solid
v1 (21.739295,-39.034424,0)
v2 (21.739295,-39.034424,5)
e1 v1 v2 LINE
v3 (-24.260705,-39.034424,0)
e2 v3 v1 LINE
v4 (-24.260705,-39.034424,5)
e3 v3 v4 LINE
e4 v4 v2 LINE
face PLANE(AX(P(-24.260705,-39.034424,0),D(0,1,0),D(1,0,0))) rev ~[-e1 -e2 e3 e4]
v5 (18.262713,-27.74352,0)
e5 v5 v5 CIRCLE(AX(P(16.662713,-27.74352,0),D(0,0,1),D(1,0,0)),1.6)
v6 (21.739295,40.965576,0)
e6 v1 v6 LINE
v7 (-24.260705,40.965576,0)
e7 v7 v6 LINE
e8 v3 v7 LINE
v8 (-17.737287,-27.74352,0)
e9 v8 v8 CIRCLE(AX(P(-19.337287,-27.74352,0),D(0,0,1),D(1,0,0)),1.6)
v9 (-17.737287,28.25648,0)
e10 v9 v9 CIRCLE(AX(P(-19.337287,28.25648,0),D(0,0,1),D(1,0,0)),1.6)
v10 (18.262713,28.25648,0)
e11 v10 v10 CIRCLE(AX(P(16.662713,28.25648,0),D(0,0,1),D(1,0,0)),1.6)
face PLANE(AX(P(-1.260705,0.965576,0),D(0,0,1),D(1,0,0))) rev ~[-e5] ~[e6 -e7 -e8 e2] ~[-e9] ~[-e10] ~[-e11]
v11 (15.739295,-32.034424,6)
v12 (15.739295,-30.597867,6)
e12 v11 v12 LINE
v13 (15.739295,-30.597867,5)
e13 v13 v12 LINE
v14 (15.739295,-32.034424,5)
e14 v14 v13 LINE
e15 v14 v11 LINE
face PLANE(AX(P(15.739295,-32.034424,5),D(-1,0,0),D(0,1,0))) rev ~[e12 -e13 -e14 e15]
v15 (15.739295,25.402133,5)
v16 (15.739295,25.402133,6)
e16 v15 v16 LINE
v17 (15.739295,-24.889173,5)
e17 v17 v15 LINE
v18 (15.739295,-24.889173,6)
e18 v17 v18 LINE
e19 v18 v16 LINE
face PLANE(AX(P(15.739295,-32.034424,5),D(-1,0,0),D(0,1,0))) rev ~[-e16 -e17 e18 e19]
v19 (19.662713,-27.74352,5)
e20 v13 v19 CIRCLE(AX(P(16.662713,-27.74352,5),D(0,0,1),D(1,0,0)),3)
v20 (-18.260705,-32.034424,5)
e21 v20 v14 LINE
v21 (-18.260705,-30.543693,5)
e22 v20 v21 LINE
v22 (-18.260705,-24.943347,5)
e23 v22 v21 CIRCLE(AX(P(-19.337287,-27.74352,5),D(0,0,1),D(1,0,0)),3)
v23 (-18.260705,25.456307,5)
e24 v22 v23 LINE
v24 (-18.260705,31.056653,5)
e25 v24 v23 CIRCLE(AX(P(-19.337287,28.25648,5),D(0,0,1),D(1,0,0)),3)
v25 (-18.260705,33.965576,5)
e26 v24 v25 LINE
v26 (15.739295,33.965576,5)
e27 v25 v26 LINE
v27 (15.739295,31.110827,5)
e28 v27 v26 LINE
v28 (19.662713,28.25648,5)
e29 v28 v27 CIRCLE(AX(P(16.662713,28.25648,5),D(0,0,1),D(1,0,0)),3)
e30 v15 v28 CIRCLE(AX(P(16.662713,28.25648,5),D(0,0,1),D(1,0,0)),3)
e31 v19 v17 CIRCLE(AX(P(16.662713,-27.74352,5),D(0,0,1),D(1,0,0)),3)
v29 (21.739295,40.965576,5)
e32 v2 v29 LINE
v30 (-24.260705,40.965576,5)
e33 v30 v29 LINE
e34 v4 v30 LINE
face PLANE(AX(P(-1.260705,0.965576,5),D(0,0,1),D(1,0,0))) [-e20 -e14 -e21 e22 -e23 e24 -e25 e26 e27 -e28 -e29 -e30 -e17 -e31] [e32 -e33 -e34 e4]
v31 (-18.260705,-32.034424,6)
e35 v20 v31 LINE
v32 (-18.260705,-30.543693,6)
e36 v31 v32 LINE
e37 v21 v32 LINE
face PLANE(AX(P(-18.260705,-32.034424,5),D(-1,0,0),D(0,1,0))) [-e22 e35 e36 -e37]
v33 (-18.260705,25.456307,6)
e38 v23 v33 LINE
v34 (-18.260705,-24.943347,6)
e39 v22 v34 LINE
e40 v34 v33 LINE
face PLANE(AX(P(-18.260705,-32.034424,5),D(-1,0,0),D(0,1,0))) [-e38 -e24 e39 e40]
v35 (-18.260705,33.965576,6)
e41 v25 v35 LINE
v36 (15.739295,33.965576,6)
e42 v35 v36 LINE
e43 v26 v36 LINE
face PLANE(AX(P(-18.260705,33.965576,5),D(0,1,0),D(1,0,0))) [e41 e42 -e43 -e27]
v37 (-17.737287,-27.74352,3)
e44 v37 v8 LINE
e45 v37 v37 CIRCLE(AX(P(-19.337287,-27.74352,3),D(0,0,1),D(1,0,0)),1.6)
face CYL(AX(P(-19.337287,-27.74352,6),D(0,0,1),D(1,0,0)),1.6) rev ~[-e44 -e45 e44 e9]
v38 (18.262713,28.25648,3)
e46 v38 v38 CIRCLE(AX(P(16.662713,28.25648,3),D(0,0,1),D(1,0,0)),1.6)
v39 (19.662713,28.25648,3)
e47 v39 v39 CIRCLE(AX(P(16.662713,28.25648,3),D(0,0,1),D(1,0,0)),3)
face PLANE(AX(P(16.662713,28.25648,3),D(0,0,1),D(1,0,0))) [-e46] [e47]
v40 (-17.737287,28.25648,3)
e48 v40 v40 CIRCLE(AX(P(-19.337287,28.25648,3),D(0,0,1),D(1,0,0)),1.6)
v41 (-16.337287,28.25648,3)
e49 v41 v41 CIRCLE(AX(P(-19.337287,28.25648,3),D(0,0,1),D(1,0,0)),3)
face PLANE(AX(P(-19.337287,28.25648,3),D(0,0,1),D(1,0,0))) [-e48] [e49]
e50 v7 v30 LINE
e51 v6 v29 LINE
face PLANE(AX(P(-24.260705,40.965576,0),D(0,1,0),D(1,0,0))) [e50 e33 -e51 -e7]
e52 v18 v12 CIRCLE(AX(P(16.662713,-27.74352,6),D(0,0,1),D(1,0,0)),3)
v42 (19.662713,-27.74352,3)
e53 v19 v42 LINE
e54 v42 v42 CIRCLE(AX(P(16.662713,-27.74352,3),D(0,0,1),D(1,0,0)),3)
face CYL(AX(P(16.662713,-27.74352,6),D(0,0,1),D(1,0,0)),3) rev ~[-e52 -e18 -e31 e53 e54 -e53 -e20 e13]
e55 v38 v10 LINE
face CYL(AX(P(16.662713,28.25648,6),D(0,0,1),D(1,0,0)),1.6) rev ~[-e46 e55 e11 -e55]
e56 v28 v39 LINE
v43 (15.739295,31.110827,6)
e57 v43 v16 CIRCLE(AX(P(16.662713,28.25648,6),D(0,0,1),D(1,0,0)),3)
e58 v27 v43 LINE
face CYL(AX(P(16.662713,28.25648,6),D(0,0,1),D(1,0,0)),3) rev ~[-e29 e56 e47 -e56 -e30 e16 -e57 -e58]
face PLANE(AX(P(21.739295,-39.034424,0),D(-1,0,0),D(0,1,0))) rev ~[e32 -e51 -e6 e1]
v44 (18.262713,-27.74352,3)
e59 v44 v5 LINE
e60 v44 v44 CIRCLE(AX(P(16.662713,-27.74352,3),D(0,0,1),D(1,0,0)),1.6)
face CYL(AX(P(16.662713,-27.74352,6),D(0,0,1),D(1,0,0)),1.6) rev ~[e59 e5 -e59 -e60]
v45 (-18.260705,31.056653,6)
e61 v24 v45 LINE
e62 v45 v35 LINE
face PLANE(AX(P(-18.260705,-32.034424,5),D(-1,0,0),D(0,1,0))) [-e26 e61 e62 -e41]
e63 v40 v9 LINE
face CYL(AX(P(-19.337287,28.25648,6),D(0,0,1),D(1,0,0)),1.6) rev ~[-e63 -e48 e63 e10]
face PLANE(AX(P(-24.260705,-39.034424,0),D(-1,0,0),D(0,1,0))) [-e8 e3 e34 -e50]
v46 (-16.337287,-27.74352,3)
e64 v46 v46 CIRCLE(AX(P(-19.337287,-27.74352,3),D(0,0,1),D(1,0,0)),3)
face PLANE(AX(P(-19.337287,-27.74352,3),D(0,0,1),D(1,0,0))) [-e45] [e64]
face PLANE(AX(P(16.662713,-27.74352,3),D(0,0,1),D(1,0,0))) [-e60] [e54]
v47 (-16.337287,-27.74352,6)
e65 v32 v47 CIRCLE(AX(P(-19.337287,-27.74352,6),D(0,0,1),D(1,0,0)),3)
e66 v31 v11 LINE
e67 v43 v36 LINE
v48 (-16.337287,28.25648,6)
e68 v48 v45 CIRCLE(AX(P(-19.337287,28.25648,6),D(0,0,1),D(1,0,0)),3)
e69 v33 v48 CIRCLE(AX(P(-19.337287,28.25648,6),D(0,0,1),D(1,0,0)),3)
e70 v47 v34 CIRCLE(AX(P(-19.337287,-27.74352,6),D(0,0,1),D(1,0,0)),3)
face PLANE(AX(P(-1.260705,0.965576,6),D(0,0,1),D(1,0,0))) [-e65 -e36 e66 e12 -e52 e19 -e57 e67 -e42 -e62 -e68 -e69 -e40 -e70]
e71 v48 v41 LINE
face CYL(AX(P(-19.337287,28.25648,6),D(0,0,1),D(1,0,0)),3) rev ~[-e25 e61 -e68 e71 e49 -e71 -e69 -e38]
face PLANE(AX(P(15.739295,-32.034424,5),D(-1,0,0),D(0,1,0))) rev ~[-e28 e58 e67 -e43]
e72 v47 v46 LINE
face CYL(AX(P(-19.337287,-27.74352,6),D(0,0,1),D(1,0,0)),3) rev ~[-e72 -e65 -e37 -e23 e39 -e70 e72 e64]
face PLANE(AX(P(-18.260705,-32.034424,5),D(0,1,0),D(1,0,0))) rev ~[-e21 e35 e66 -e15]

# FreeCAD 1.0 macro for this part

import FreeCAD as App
import Part
import Sketcher
Q = App.Units.Quantity

doc = App.newDocument("Part")
body = doc.addObject("PartDesign::Body", "Body")

# Sketch on XY plane
sketch1 = body.newObject("Sketcher::SketchObject", "Sketch")
sketch1.AttachmentSupport = (doc.getObject("XY_Plane"), [""])
sketch1.MapMode = "FlatFace"
sketch1.addGeometry([
    Part.LineSegment(App.Vector(-24, 41, 0), App.Vector(-24, -39, 0)),
    Part.LineSegment(App.Vector(-24, -39, 0), App.Vector(22, -39, 0)),
    Part.LineSegment(App.Vector(22, -39, 0), App.Vector(22, 41, 0)),
    Part.LineSegment(App.Vector(22, 41, 0), App.Vector(-24, 41, 0)),
], False)
sketch1.addConstraint([
    Sketcher.Constraint("Coincident", 0, 2, 1, 1),
    Sketcher.Constraint("Coincident", 1, 2, 2, 1),
    Sketcher.Constraint("Coincident", 2, 2, 3, 1),
    Sketcher.Constraint("Coincident", 3, 2, 0, 1),
    Sketcher.Constraint("Vertical", 0),
    Sketcher.Constraint("Horizontal", 1),
    Sketcher.Constraint("Vertical", 2),
    Sketcher.Constraint("Horizontal", 3),
    Sketcher.Constraint("DistanceX", 1, 1, 1, 2, Q("46 mm")),
    Sketcher.Constraint("DistanceY", 0, 2, 0, 1, Q("80 mm")),
    Sketcher.Constraint("DistanceX", 0, 2, -1, 1, Q("24.260705 mm")),
    Sketcher.Constraint("DistanceY", 0, 2, -1, 1, Q("39.034424 mm")),
])
pad1 = body.newObject("PartDesign::Pad", "Pad")
pad1.Profile = sketch1
pad1.Length = 5

# Sketch on XY plane
sketch2 = body.newObject("Sketcher::SketchObject", "Sketch001")
sketch2.AttachmentSupport = (doc.getObject("XY_Plane"), [""])
sketch2.MapMode = "FlatFace"
sketch2.AttachmentOffset = App.Placement(App.Vector(0, 0, 5), App.Rotation())
sketch2.addGeometry([
    Part.LineSegment(App.Vector(-18, 34, 0), App.Vector(-18, -32, 0)),
    Part.LineSegment(App.Vector(-18, -32, 0), App.Vector(16, -32, 0)),
    Part.LineSegment(App.Vector(16, -32, 0), App.Vector(16, 34, 0)),
    Part.LineSegment(App.Vector(16, 34, 0), App.Vector(-18, 34, 0)),
], False)
sketch2.addConstraint([
    Sketcher.Constraint("Coincident", 0, 2, 1, 1),
    Sketcher.Constraint("Coincident", 1, 2, 2, 1),
    Sketcher.Constraint("Coincident", 2, 2, 3, 1),
    Sketcher.Constraint("Coincident", 3, 2, 0, 1),
    Sketcher.Constraint("Vertical", 0),
    Sketcher.Constraint("Horizontal", 1),
    Sketcher.Constraint("Vertical", 2),
    Sketcher.Constraint("Horizontal", 3),
    Sketcher.Constraint("DistanceX", 1, 1, 1, 2, Q("34 mm")),
    Sketcher.Constraint("DistanceY", 0, 2, 0, 1, Q("66 mm")),
    Sketcher.Constraint("DistanceX", 0, 2, -1, 1, Q("18.260705 mm")),
    Sketcher.Constraint("DistanceY", 0, 2, -1, 1, Q("32.034424 mm")),
])
pad2 = body.newObject("PartDesign::Pad", "Pad001")
pad2.Profile = sketch2
pad2.Length = 1

# Sketch on XY plane
sketch3 = body.newObject("Sketcher::SketchObject", "Sketch002")
sketch3.AttachmentSupport = (doc.getObject("XY_Plane"), [""])
sketch3.MapMode = "FlatFace"
sketch3.AttachmentOffset = App.Placement(App.Vector(0, 0, 6), App.Rotation())
sketch3.addGeometry([
    Part.Circle(App.Vector(-19.3, 28.3, 0), App.Vector(0, 0, 1), 3),
    Part.Circle(App.Vector(16.7, 28.3, 0), App.Vector(0, 0, 1), 3),
    Part.Circle(App.Vector(-19.3, -27.7, 0), App.Vector(0, 0, 1), 3),
    Part.Circle(App.Vector(16.7, -27.7, 0), App.Vector(0, 0, 1), 3),
], False)
sketch3.addConstraint([
    Sketcher.Constraint("Equal", 0, 1),
    Sketcher.Constraint("Equal", 1, 2),
    Sketcher.Constraint("Equal", 2, 3),
    Sketcher.Constraint("Horizontal", 0, 3, 1, 3),
    Sketcher.Constraint("Horizontal", 2, 3, 3, 3),
    Sketcher.Constraint("Vertical", 0, 3, 2, 3),
    Sketcher.Constraint("Vertical", 1, 3, 3, 3),
    Sketcher.Constraint("Diameter", 0, Q("6 mm")),
    Sketcher.Constraint("DistanceX", 0, 3, 1, 3, Q("36 mm")),
    Sketcher.Constraint("DistanceY", 2, 3, 0, 3, Q("56 mm")),
    Sketcher.Constraint("DistanceY", -1, 1, 0, 3, Q("28.25648 mm")),
    Sketcher.Constraint("DistanceX", 0, 3, -1, 1, Q("19.337287 mm")),
])
pocket1 = body.newObject("PartDesign::Pocket", "Pocket")
pocket1.Profile = sketch3
pocket1.Length = 3

# Sketch on XY plane
sketch4 = body.newObject("Sketcher::SketchObject", "Sketch003")
sketch4.AttachmentSupport = (doc.getObject("XY_Plane"), [""])
sketch4.MapMode = "FlatFace"
sketch4.AttachmentOffset = App.Placement(App.Vector(0, 0, 6), App.Rotation())
sketch4.addGeometry([
    Part.Circle(App.Vector(-19.3, 28.3, 0), App.Vector(0, 0, 1), 1.6),
    Part.Circle(App.Vector(16.7, 28.3, 0), App.Vector(0, 0, 1), 1.6),
    Part.Circle(App.Vector(-19.3, -27.7, 0), App.Vector(0, 0, 1), 1.6),
    Part.Circle(App.Vector(16.7, -27.7, 0), App.Vector(0, 0, 1), 1.6),
], False)
sketch4.addConstraint([
    Sketcher.Constraint("Equal", 0, 1),
    Sketcher.Constraint("Equal", 1, 2),
    Sketcher.Constraint("Equal", 2, 3),
    Sketcher.Constraint("Horizontal", 0, 3, 1, 3),
    Sketcher.Constraint("Horizontal", 2, 3, 3, 3),
    Sketcher.Constraint("Vertical", 0, 3, 2, 3),
    Sketcher.Constraint("Vertical", 1, 3, 3, 3),
    Sketcher.Constraint("Diameter", 0, Q("3.2 mm")),
    Sketcher.Constraint("DistanceX", 0, 3, 1, 3, Q("36 mm")),
    Sketcher.Constraint("DistanceY", 2, 3, 0, 3, Q("56 mm")),
    Sketcher.Constraint("DistanceY", -1, 1, 0, 3, Q("28.25648 mm")),
    Sketcher.Constraint("DistanceX", 0, 3, -1, 1, Q("19.337287 mm")),
])
pocket2 = body.newObject("PartDesign::Pocket", "Pocket001")
pocket2.Profile = sketch4
pocket2.Type = "ThroughAll"

doc.recompute()
